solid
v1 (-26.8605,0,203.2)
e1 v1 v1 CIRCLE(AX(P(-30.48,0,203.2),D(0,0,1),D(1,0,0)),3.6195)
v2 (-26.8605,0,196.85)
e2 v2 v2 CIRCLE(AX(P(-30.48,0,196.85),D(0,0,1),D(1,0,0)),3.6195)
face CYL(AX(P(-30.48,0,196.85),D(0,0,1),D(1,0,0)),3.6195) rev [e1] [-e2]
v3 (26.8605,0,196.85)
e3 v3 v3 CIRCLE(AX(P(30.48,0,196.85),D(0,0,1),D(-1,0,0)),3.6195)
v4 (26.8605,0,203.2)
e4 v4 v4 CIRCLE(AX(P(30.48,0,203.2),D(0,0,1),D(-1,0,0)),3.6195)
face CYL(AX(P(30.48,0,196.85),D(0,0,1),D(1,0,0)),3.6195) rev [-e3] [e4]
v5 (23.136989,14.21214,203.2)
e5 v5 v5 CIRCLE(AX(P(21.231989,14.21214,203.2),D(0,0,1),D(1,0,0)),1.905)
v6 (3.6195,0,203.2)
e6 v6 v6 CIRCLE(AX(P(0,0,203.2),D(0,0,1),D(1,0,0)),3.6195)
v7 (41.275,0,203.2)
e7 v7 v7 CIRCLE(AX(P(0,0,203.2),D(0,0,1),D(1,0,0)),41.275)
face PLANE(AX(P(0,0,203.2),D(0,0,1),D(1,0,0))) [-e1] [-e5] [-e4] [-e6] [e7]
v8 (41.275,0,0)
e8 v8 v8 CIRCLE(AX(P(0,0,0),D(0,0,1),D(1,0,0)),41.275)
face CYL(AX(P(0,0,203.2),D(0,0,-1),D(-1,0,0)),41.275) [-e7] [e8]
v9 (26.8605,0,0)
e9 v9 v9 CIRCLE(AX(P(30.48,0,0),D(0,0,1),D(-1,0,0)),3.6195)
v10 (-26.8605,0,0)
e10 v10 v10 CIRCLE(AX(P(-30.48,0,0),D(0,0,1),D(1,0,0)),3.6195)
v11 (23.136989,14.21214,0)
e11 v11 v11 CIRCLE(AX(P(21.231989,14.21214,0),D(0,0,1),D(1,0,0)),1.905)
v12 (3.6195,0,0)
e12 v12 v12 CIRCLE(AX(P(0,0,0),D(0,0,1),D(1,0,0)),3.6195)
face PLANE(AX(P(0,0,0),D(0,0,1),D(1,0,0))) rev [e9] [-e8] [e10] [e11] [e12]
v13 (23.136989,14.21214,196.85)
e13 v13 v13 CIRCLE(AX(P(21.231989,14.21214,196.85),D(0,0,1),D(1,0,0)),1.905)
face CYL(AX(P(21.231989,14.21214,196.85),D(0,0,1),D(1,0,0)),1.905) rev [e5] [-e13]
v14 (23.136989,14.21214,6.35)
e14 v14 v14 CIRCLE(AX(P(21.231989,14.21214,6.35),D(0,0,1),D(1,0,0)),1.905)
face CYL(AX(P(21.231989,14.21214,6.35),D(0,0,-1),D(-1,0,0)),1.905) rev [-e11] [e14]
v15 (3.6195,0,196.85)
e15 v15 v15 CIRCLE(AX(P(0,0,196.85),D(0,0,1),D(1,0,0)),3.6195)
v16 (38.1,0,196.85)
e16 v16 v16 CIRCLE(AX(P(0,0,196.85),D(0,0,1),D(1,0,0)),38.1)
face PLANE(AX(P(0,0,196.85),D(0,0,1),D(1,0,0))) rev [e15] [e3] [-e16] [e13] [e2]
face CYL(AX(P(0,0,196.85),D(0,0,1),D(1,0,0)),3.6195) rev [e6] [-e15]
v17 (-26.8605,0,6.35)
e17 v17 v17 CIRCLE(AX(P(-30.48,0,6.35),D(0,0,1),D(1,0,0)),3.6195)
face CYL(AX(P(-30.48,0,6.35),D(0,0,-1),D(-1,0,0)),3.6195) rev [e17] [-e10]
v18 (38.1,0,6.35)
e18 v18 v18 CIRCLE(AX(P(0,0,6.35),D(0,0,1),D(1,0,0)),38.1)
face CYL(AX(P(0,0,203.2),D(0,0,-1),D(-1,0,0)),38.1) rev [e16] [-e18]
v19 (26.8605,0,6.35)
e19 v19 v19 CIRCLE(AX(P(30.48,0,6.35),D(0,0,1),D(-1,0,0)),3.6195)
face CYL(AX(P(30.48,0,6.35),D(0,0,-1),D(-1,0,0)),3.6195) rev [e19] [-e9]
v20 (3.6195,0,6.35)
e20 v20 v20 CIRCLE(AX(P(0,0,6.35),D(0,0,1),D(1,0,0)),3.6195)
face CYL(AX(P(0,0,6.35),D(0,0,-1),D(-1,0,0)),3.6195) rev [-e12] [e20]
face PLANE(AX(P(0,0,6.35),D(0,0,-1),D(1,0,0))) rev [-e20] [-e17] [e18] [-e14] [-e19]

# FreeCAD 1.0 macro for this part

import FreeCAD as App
import Part
import Sketcher

V = App.Vector
Q = App.Units.Quantity

doc = App.newDocument("Part")
params = doc.addObject("Spreadsheet::Sheet", "Params")
for row, (alias, value) in enumerate([
    ("sketch1_diameter", "3 in"),
    ("sketch1_diameter2", "3.25 in"),
    ("pad1_length", "8 in"),
    ("sketch2_diameter", "3 in"),
    ("sketch2_diameter2", "0.15 in"),
    ("sketch2_diameter3", "0.285 in"),
    ("pad2_length", "0.25 in"),
], start=1):
    params.set(f"A{row}", alias)
    params.set(f"B{row}", "=" + value)
    params.setAlias(f"B{row}", alias)

body = doc.addObject("PartDesign::Body", "Body")

# Sketch on XY plane
sketch1 = body.newObject("Sketcher::SketchObject", "Sketch")
sketch1.AttachmentSupport = (doc.getObject("XY_Plane"), [""])
sketch1.MapMode = "FlatFace"
sketch1.addGeometry(Part.Circle(V(0, 0, 0), V(0, 0, 1), 41), False)
sketch1.addGeometry(Part.Circle(V(0, 0, 0), V(0, 0, 1), 38), False)
sketch1.addConstraint(Sketcher.Constraint("Coincident", 0, 3, -1, 1))
sketch1.addConstraint(Sketcher.Constraint("Coincident", 1, 3, -1, 1))
sketch1.addConstraint(Sketcher.Constraint("Diameter", 1, Q("3 in")))
sketch1.addConstraint(Sketcher.Constraint("Diameter", 0, Q("3.25 in")))
sketch1.setExpression("Constraints[2]", "Params.sketch1_diameter")
sketch1.setExpression("Constraints[3]", "Params.sketch1_diameter2")
pad1 = body.newObject("PartDesign::Pad", "Pad")
pad1.Profile = sketch1
pad1.setExpression("Length", "Params.pad1_length")

# Sketch on XY plane
sketch2 = body.newObject("Sketcher::SketchObject", "Sketch001")
sketch2.AttachmentSupport = (doc.getObject("XY_Plane"), [""])
sketch2.MapMode = "FlatFace"
sketch2.AttachmentOffset = App.Placement(V(0, 0, 7.75 * 25.4), App.Rotation())
sketch2.addGeometry(Part.Circle(V(0, 0, 0), V(0, 0, 1), 38.1), False)
sketch2.addGeometry(Part.Circle(V(-30.5, 0, 0), V(0, 0, 1), 3.6), False)
sketch2.addGeometry(Part.Circle(V(0, 0, 0), V(0, 0, 1), 3.6), False)
sketch2.addGeometry(Part.Circle(V(30.5, 0, 0), V(0, 0, 1), 3.6), False)
sketch2.addGeometry(Part.Circle(V(21.2, 14.2, 0), V(0, 0, 1), 1.9), False)
sketch2.addConstraint(Sketcher.Constraint("Coincident", 0, 3, -1, 1))
sketch2.addConstraint(Sketcher.Constraint("Coincident", 2, 3, -1, 1))
sketch2.addConstraint(Sketcher.Constraint("Equal", 1, 2))
sketch2.addConstraint(Sketcher.Constraint("Equal", 2, 3))
sketch2.addConstraint(Sketcher.Constraint("Symmetric", 1, 3, 3, 3, -1, 1))
sketch2.addConstraint(Sketcher.Constraint("PointOnObject", 1, 3, -1))
sketch2.addConstraint(Sketcher.Constraint("Diameter", 0, Q("3 in")))
sketch2.addConstraint(Sketcher.Constraint("Diameter", 4, Q("0.15 in")))
sketch2.addConstraint(Sketcher.Constraint("Diameter", 1, Q("0.285 in")))
sketch2.addConstraint(Sketcher.Constraint("DistanceX", 1, 3, -1, 1, Q("1.2 in")))
sketch2.addConstraint(Sketcher.Constraint("DistanceX", -1, 1, 4, 3, Q("21.231989 mm")))
sketch2.addConstraint(Sketcher.Constraint("DistanceY", -1, 1, 4, 3, Q("14.21214 mm")))
sketch2.setExpression("Constraints[6]", "Params.sketch2_diameter")
sketch2.setExpression("Constraints[7]", "Params.sketch2_diameter2")
sketch2.setExpression("Constraints[8]", "Params.sketch2_diameter3")
pad2 = body.newObject("PartDesign::Pad", "Pad001")
pad2.Profile = sketch2
pad2.setExpression("Length", "Params.pad2_length")
doc.recompute()

datumplane = body.newObject("PartDesign::Plane", "DatumPlane")
datumplane.AttachmentSupport = (doc.getObject("XY_Plane"), [""])
datumplane.MapMode = "FlatFace"
datumplane.AttachmentOffset = App.Placement(V(0, 0, 4 * 25.4), App.Rotation())
mirrored = body.newObject("PartDesign::Mirrored", "Mirrored")
mirrored.Originals = [pad2]
mirrored.MirrorPlane = (datumplane, [""])
body.Tip = mirrored

doc.recompute()
